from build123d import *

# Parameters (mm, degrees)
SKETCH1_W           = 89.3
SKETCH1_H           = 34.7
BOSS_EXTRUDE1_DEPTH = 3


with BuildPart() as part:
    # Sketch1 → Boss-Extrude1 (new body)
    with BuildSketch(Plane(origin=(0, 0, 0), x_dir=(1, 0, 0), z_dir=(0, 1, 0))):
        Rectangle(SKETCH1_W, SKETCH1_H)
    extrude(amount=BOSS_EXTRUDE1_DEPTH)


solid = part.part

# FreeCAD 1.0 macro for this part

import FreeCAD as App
import Part
import Sketcher

doc = App.newDocument("Part")
body = doc.addObject("PartDesign::Body", "Body")

# Sketch on XZ plane
sketch1 = doc.addObject("Sketcher::SketchObject", "Sketch")
body.addObject(sketch1)
sketch1.AttachmentSupport = (doc.XZ_Plane, [""])
sketch1.MapMode = "FlatFace"
sketch1.addGeometry(Part.LineSegment(App.Vector(-45, -17, 0), App.Vector(-45, 17, 0)), False)
sketch1.addGeometry(Part.LineSegment(App.Vector(-45, 17, 0), App.Vector(45, 17, 0)), False)
sketch1.addGeometry(Part.LineSegment(App.Vector(45, 17, 0), App.Vector(45, -17, 0)), False)
sketch1.addGeometry(Part.LineSegment(App.Vector(45, -17, 0), App.Vector(-45, -17, 0)), False)
sketch1.addConstraint(Sketcher.Constraint("Coincident", 0, 2, 1, 1))
sketch1.addConstraint(Sketcher.Constraint("Coincident", 1, 2, 2, 1))
sketch1.addConstraint(Sketcher.Constraint("Coincident", 2, 2, 3, 1))
sketch1.addConstraint(Sketcher.Constraint("Coincident", 3, 2, 0, 1))
sketch1.addConstraint(Sketcher.Constraint("Vertical", 0))
sketch1.addConstraint(Sketcher.Constraint("Horizontal", 1))
sketch1.addConstraint(Sketcher.Constraint("Vertical", 2))
sketch1.addConstraint(Sketcher.Constraint("Horizontal", 3))
sketch1.addConstraint(Sketcher.Constraint("Symmetric", 0, 2, 2, 2, -1, 1))
sketch1.addConstraint(Sketcher.Constraint("DistanceX", 1, 1, 1, 2, 89.3))
sketch1.addConstraint(Sketcher.Constraint("DistanceY", 0, 1, 0, 2, 34.7))
pad1 = doc.addObject("PartDesign::Pad", "Pad")
body.addObject(pad1)
pad1.Profile = sketch1
pad1.Length = 3
pad1.Reversed = True

doc.recompute()
